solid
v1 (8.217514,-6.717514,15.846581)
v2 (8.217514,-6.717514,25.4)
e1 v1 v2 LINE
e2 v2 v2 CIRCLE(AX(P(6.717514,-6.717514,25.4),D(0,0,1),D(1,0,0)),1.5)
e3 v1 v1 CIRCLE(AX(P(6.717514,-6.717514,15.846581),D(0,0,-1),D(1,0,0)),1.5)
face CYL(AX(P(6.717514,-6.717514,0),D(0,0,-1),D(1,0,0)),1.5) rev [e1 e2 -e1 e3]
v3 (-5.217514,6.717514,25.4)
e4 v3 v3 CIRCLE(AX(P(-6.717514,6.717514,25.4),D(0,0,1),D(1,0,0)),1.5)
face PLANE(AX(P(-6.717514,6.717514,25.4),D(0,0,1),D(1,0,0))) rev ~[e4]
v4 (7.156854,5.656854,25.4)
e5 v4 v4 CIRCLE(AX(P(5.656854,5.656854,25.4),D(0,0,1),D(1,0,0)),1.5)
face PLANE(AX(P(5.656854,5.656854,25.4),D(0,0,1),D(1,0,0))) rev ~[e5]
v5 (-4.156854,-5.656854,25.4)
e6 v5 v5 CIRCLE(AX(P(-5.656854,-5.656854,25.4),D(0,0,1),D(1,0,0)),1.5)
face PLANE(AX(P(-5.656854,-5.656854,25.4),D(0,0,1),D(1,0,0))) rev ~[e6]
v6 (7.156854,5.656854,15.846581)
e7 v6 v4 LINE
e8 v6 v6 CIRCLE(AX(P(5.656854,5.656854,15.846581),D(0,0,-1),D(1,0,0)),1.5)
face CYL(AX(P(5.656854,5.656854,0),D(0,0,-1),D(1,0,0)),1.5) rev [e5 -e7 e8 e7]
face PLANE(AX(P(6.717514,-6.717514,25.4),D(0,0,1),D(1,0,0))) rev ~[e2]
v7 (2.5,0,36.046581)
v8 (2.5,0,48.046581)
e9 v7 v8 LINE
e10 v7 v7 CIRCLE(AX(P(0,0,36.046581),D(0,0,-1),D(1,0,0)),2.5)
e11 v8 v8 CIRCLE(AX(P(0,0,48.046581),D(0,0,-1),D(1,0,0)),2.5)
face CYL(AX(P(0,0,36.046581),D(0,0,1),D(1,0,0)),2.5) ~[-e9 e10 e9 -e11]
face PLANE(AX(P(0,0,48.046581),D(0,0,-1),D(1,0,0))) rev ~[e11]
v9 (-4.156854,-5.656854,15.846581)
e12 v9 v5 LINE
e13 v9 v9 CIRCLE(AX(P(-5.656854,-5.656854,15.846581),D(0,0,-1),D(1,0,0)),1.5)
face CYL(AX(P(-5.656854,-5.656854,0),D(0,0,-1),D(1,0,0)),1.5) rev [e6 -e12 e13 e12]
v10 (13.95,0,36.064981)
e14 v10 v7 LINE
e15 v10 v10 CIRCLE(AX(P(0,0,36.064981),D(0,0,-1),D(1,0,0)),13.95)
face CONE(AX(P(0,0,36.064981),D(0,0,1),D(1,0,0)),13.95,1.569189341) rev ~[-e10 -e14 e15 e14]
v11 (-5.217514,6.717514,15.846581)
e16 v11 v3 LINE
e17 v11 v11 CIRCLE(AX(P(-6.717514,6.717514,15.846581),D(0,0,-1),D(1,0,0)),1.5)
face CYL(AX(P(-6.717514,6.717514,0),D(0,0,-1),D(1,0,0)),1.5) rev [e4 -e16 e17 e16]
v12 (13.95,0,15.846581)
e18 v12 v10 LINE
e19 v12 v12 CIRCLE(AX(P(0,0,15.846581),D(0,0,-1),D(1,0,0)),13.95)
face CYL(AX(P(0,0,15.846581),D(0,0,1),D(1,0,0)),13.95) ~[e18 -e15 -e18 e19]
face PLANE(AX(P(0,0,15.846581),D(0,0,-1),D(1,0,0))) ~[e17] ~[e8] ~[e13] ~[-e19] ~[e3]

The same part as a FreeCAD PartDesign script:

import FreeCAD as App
import Part
import Sketcher

V = App.Vector
Q = App.Units.Quantity

doc = App.newDocument("Part")
body = doc.addObject("PartDesign::Body", "Body")

# Sketch on XZ plane
sketch1 = body.newObject("Sketcher::SketchObject", "Sketch")
sketch1.AttachmentSupport = (doc.getObject("XZ_Plane"), [""])
sketch1.MapMode = "FlatFace"
sketch1.addGeometry(Part.LineSegment(V(0, 48.046581, 0), V(0, 15.846581, 0)), False)
sketch1.addGeometry(Part.LineSegment(V(0, 15.846581, 0), V(13.95, 15.846581, 0)), False)
sketch1.addGeometry(Part.LineSegment(V(13.95, 15.846581, 0), V(13.95, 36.064981, 0)), False)
sketch1.addGeometry(Part.LineSegment(V(13.95, 36.064981, 0), V(2.5, 36.046581, 0)), False)
sketch1.addGeometry(Part.LineSegment(V(2.5, 36.046581, 0), V(2.5, 48.046581, 0)), False)
sketch1.addGeometry(Part.LineSegment(V(2.5, 48.046581, 0), V(0, 48.046581, 0)), False)
sketch1.addConstraint(Sketcher.Constraint("Coincident", 0, 2, 1, 1))
sketch1.addConstraint(Sketcher.Constraint("Coincident", 1, 2, 2, 1))
sketch1.addConstraint(Sketcher.Constraint("Coincident", 2, 2, 3, 1))
sketch1.addConstraint(Sketcher.Constraint("Coincident", 3, 2, 4, 1))
sketch1.addConstraint(Sketcher.Constraint("Coincident", 4, 2, 5, 1))
sketch1.addConstraint(Sketcher.Constraint("Coincident", 5, 2, 0, 1))
sketch1.addConstraint(Sketcher.Constraint("Vertical", 0))
sketch1.addConstraint(Sketcher.Constraint("Horizontal", 1))
sketch1.addConstraint(Sketcher.Constraint("Vertical", 2))
sketch1.addConstraint(Sketcher.Constraint("Vertical", 4))
sketch1.addConstraint(Sketcher.Constraint("Horizontal", 5))
sketch1.addConstraint(Sketcher.Constraint("PointOnObject", 0, 2, -2))
sketch1.addConstraint(Sketcher.Constraint("DistanceY", 4, 1, 4, 2, Q("12 mm")))
sketch1.addConstraint(Sketcher.Constraint("DistanceX", 5, 2, 5, 1, Q("2.5 mm")))
sketch1.addConstraint(Sketcher.Constraint("DistanceY", 0, 2, 0, 1, Q("32.2 mm")))
sketch1.addConstraint(Sketcher.Constraint("DistanceX", 1, 1, 1, 2, Q("13.95 mm")))
sketch1.addConstraint(Sketcher.Constraint("DistanceY", 2, 1, 2, 2, Q("20.2184 mm")))
sketch1.addConstraint(Sketcher.Constraint("DistanceY", -1, 1, 0, 2, Q("15.846581 mm")))
revolution = body.newObject("PartDesign::Revolution", "Revolution")
revolution.Profile = sketch1
revolution.ReferenceAxis = (sketch1, ["V_Axis"])
revolution.Angle = 360

# Sketch on XY plane
sketch2 = body.newObject("Sketcher::SketchObject", "Sketch001")
sketch2.AttachmentSupport = (doc.getObject("XY_Plane"), [""])
sketch2.MapMode = "FlatFace"
sketch2.addGeometry(Part.Circle(V(6.717514, -6.717514, 0), V(0, 0, 1), 1.5), False)
sketch2.addGeometry(Part.Circle(V(-6.717514, 6.717514, 0), V(0, 0, 1), 1.5), False)
sketch2.addConstraint(Sketcher.Constraint("Equal", 0, 1))
sketch2.addConstraint(Sketcher.Constraint("Symmetric", 0, 3, 1, 3, -1, 1))
sketch2.addConstraint(Sketcher.Constraint("Diameter", 0, Q("3 mm")))
sketch2.addConstraint(Sketcher.Constraint("DistanceX", 1, 3, 0, 3, Q("13.435028 mm")))
sketch2.addConstraint(Sketcher.Constraint("DistanceY", 0, 3, 1, 3, Q("13.435028 mm")))
pocket1 = body.newObject("PartDesign::Pocket", "Pocket")
pocket1.Profile = sketch2
pocket1.Length = 25.4
pocket1.Reversed = True

# Sketch on XY plane
sketch3 = body.newObject("Sketcher::SketchObject", "Sketch002")
sketch3.AttachmentSupport = (doc.getObject("XY_Plane"), [""])
sketch3.MapMode = "FlatFace"
sketch3.addGeometry(Part.Circle(V(-5.656854, -5.656854, 0), V(0, 0, 1), 1.5), False)
sketch3.addGeometry(Part.Circle(V(5.656854, 5.656854, 0), V(0, 0, 1), 1.5), False)
sketch3.addConstraint(Sketcher.Constraint("Equal", 0, 1))
sketch3.addConstraint(Sketcher.Constraint("Symmetric", 0, 3, 1, 3, -1, 1))
sketch3.addConstraint(Sketcher.Constraint("Diameter", 0, Q("3 mm")))
sketch3.addConstraint(Sketcher.Constraint("DistanceX", 0, 3, -1, 1, Q("5.656854 mm")))
sketch3.addConstraint(Sketcher.Constraint("DistanceY", 0, 3, -1, 1, Q("5.656854 mm")))
pocket2 = body.newObject("PartDesign::Pocket", "Pocket001")
pocket2.Profile = sketch3
pocket2.Length = 25.4
pocket2.Reversed = True

doc.recompute()
